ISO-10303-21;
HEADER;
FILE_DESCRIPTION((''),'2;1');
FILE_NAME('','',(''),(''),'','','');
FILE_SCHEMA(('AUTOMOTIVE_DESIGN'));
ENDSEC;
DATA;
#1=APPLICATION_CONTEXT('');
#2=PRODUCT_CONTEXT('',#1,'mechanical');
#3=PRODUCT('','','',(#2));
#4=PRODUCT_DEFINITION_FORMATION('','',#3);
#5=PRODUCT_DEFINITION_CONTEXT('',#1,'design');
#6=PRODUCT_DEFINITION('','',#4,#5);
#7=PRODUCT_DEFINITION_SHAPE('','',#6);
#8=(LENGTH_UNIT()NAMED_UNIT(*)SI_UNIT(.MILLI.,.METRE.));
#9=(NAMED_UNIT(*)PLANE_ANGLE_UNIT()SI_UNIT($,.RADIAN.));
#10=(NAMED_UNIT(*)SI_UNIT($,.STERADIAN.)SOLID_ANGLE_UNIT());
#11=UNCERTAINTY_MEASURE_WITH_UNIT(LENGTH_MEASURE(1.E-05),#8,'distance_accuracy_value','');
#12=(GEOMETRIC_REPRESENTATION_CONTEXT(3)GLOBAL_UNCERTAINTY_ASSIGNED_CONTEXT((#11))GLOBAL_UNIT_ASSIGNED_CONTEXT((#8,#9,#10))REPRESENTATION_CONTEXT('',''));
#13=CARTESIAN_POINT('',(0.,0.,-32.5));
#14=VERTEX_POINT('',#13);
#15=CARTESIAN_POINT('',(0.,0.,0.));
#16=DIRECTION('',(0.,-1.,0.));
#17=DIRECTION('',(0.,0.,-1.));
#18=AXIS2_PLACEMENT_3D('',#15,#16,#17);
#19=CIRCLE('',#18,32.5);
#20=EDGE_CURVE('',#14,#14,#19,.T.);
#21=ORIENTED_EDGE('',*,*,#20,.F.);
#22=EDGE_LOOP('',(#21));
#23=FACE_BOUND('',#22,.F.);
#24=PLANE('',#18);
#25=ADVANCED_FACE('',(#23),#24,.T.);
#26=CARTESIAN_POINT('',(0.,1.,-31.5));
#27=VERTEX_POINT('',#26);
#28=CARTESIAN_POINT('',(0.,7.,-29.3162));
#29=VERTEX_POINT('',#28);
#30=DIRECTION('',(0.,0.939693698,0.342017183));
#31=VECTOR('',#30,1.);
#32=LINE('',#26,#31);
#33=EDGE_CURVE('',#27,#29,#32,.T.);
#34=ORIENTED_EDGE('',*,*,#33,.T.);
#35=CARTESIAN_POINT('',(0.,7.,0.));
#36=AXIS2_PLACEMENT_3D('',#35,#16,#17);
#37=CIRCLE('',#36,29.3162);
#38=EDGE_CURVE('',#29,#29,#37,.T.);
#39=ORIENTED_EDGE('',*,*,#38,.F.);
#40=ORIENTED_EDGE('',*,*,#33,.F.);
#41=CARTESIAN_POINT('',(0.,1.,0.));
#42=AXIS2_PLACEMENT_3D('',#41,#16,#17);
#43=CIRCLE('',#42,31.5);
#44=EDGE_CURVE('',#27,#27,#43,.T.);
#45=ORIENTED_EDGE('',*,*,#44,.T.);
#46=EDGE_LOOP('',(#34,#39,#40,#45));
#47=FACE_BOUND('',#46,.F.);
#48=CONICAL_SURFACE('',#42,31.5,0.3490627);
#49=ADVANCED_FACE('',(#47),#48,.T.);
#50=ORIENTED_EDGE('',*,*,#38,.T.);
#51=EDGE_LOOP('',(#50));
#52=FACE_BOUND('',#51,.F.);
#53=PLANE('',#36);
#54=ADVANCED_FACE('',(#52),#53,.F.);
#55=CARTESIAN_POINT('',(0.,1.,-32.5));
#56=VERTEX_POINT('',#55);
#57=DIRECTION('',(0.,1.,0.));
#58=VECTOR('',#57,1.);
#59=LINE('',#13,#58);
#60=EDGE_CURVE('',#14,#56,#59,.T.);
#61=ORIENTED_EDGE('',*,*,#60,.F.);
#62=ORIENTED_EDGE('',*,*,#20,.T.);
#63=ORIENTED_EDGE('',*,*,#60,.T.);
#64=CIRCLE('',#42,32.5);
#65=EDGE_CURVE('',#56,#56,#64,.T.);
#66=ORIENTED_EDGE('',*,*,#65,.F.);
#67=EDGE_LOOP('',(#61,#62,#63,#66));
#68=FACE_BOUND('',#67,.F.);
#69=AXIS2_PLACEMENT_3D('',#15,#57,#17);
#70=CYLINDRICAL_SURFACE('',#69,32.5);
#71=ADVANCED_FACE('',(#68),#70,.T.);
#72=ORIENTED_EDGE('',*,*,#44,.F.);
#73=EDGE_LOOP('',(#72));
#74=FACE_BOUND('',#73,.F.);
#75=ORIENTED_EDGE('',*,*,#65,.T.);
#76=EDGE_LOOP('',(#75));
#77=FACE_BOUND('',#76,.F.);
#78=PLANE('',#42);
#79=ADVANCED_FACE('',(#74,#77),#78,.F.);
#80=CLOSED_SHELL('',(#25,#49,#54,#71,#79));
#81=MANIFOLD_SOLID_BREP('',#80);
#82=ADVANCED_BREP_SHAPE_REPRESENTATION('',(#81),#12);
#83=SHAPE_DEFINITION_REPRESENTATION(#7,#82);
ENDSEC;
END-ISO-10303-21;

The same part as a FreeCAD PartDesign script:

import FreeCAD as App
import Part
import Sketcher
from FreeCAD import Vector
Q = App.Units.Quantity

doc = App.newDocument("Part")
body = doc.addObject("PartDesign::Body", "Body")

# Sketch on YZ plane
sketch1 = body.newObject("Sketcher::SketchObject", "Sketch")
sketch1.AttachmentSupport = (doc.getObject("YZ_Plane"), [""])
sketch1.MapMode = "FlatFace"
sketch1.addGeometry(Part.LineSegment(Vector(7, 0, 0), Vector(0, 0, 0)), False)
sketch1.addGeometry(Part.LineSegment(Vector(0, 0, 0), Vector(0, -32.5, 0)), False)
sketch1.addGeometry(Part.LineSegment(Vector(0, -32.5, 0), Vector(1, -32.5, 0)), False)
sketch1.addGeometry(Part.LineSegment(Vector(1, -32.5, 0), Vector(1, -31.5, 0)), False)
sketch1.addGeometry(Part.LineSegment(Vector(1, -31.5, 0), Vector(7, -29.3162, 0)), False)
sketch1.addGeometry(Part.LineSegment(Vector(7, -29.3162, 0), Vector(7, 0, 0)), False)
sketch1.addConstraint(Sketcher.Constraint("Coincident", 0, 2, 1, 1))
sketch1.addConstraint(Sketcher.Constraint("Coincident", 1, 2, 2, 1))
sketch1.addConstraint(Sketcher.Constraint("Coincident", 2, 2, 3, 1))
sketch1.addConstraint(Sketcher.Constraint("Coincident", 3, 2, 4, 1))
sketch1.addConstraint(Sketcher.Constraint("Coincident", 4, 2, 5, 1))
sketch1.addConstraint(Sketcher.Constraint("Coincident", 5, 2, 0, 1))
sketch1.addConstraint(Sketcher.Constraint("Horizontal", 0))
sketch1.addConstraint(Sketcher.Constraint("Vertical", 1))
sketch1.addConstraint(Sketcher.Constraint("Horizontal", 2))
sketch1.addConstraint(Sketcher.Constraint("Vertical", 3))
sketch1.addConstraint(Sketcher.Constraint("Vertical", 5))
sketch1.addConstraint(Sketcher.Constraint("Coincident", 0, 2, -1, 1))
sketch1.addConstraint(Sketcher.Constraint("Equal", 2, 3))
sketch1.addConstraint(Sketcher.Constraint("DistanceX", 0, 2, 0, 1, Q("7 mm")))
sketch1.addConstraint(Sketcher.Constraint("DistanceX", 2, 1, 2, 2, Q("1 mm")))
sketch1.addConstraint(Sketcher.Constraint("Angle", 4, Q("19.9998 deg")))
sketch1.addConstraint(Sketcher.Constraint("DistanceY", 1, 2, 1, 1, Q("32.5 mm")))
revolution = body.newObject("PartDesign::Revolution", "Revolution")
revolution.Profile = sketch1
revolution.ReferenceAxis = (sketch1, ["H_Axis"])
revolution.Angle = 360

doc.recompute()
